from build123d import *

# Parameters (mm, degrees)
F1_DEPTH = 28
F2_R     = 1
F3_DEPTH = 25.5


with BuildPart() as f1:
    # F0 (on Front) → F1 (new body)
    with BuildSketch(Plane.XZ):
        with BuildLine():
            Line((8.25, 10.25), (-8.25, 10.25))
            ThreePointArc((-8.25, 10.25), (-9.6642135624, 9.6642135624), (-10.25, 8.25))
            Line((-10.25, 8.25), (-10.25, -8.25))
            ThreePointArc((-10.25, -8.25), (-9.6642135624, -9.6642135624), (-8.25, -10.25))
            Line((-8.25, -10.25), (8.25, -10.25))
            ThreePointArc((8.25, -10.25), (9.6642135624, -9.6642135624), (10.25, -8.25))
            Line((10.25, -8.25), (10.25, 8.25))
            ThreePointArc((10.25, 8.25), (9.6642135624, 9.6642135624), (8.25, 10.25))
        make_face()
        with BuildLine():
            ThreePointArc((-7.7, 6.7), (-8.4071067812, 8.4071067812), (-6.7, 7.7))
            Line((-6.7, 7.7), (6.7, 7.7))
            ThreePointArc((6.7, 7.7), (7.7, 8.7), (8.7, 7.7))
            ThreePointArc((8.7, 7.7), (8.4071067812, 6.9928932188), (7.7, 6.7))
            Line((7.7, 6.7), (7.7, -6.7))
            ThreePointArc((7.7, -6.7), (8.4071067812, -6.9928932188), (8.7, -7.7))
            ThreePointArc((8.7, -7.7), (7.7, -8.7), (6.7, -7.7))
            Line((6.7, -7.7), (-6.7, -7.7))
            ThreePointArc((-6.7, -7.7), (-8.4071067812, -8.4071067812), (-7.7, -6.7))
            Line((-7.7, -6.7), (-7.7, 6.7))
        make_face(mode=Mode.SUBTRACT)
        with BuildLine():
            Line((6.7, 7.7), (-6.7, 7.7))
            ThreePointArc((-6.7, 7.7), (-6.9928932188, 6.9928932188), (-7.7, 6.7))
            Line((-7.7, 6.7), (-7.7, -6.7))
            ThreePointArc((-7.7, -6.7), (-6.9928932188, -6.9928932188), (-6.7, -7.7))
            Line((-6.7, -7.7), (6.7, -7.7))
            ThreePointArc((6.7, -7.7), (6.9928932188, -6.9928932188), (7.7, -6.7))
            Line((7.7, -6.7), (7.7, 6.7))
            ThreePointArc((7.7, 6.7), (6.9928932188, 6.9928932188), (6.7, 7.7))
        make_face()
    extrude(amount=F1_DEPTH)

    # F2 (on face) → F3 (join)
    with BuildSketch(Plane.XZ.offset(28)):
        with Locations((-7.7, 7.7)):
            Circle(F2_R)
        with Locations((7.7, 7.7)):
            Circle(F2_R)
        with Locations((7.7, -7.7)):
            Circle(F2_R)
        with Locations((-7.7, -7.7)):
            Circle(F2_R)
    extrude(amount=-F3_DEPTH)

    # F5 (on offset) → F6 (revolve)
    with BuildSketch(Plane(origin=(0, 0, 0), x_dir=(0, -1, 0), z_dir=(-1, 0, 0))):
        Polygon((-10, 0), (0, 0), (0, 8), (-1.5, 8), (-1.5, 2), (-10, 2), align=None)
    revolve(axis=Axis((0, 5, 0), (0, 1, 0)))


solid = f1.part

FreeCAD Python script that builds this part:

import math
import FreeCAD as App
import Part
import Sketcher

V = App.Vector


def add_polygon(sketch, points):
    """Adds a closed chain of lines whose ends are joined by coincident constraints."""
    first, n = sketch.GeometryCount, len(points)
    for a, b in zip(points, points[1:] + points[:1]):
        sketch.addGeometry(Part.LineSegment(App.Vector(*a, 0), App.Vector(*b, 0)), False)
    for i in range(n):
        sketch.addConstraint(Sketcher.Constraint("Coincident", first + i, 2, first + (i + 1) % n, 1))

doc = App.newDocument("Part")
body = doc.addObject("PartDesign::Body", "Body")

# Sketch on XZ plane
sketch1 = doc.addObject("Sketcher::SketchObject", "Sketch")
body.addObject(sketch1)
sketch1.AttachmentSupport = (doc.XZ_Plane, [""])
sketch1.MapMode = "FlatFace"
sketch1.addGeometry([
    Part.LineSegment(V(8.25, 10.25, 0), V(-8.25, 10.25, 0)),  # 0
    Part.ArcOfCircle(Part.Circle(V(-8.25, 8.25, 0), V(0, 0, 1), 2), math.radians(90), math.radians(180)),  # 1
    Part.LineSegment(V(-10.25, 8.25, 0), V(-10.25, -8.25, 0)),  # 2
    Part.ArcOfCircle(Part.Circle(V(-8.25, -8.25, 0), V(0, 0, 1), 2), math.radians(180), math.radians(270)),  # 3
    Part.LineSegment(V(-8.25, -10.25, 0), V(8.25, -10.25, 0)),  # 4
    Part.ArcOfCircle(Part.Circle(V(8.25, -8.25, 0), V(0, 0, 1), 2), math.radians(-90), math.radians(0)),  # 5
    Part.LineSegment(V(10.25, -8.25, 0), V(10.25, 8.25, 0)),  # 6
    Part.ArcOfCircle(Part.Circle(V(8.25, 8.25, 0), V(0, 0, 1), 2), math.radians(0), math.radians(90)),  # 7
    Part.ArcOfCircle(Part.Circle(V(-7.7, -7.7, 0), V(0, 0, 1), 1), math.radians(90), math.radians(360)),  # 8
    Part.ArcOfCircle(Part.Circle(V(-7.7, -7.7, 0), V(0, 0, 1), 1), math.radians(0), math.radians(90)),  # 9
    Part.ArcOfCircle(Part.Circle(V(7.7, -7.7, 0), V(0, 0, 1), 1), math.radians(180), math.radians(360)),  # 10
    Part.ArcOfCircle(Part.Circle(V(7.7, -7.7, 0), V(0, 0, 1), 1), math.radians(90), math.radians(180)),  # 11
    Part.ArcOfCircle(Part.Circle(V(7.7, -7.7, 0), V(0, 0, 1), 1), math.radians(0), math.radians(90)),  # 12
    Part.ArcOfCircle(Part.Circle(V(7.7, 7.7, 0), V(0, 0, 1), 1), math.radians(-90), math.radians(0)),  # 13
    Part.ArcOfCircle(Part.Circle(V(7.7, 7.7, 0), V(0, 0, 1), 1), math.radians(180), math.radians(270)),  # 14
    Part.ArcOfCircle(Part.Circle(V(7.7, 7.7, 0), V(0, 0, 1), 1), math.radians(0), math.radians(180)),  # 15
    Part.ArcOfCircle(Part.Circle(V(-7.7, 7.7, 0), V(0, 0, 1), 1), math.radians(0), math.radians(270)),  # 16
    Part.ArcOfCircle(Part.Circle(V(-7.7, 7.7, 0), V(0, 0, 1), 1), math.radians(-90), math.radians(0)),  # 17
], False)
sketch1.addConstraint([
    Sketcher.Constraint("Tangent", 0, 2, 1, 1),
    Sketcher.Constraint("Tangent", 1, 2, 2, 1),
    Sketcher.Constraint("Tangent", 2, 2, 3, 1),
    Sketcher.Constraint("Tangent", 3, 2, 4, 1),
    Sketcher.Constraint("Tangent", 4, 2, 5, 1),
    Sketcher.Constraint("Tangent", 5, 2, 6, 1),
    Sketcher.Constraint("Tangent", 6, 2, 7, 1),
    Sketcher.Constraint("Tangent", 7, 2, 0, 1),
    Sketcher.Constraint("Tangent", 8, 1, 9, 2),
    Sketcher.Constraint("Coincident", 9, 1, 8, 2),
    Sketcher.Constraint("Tangent", 10, 1, 11, 2),
    Sketcher.Constraint("Tangent", 11, 1, 12, 2),
    Sketcher.Constraint("Tangent", 12, 1, 10, 2),
    Sketcher.Constraint("Tangent", 13, 1, 14, 2),
    Sketcher.Constraint("Tangent", 14, 1, 15, 2),
    Sketcher.Constraint("Tangent", 15, 1, 13, 2),
    Sketcher.Constraint("Tangent", 16, 1, 17, 2),
    Sketcher.Constraint("Coincident", 17, 1, 16, 2),
    Sketcher.Constraint("Horizontal", 0),
    Sketcher.Constraint("Vertical", 2),
    Sketcher.Constraint("Horizontal", 4),
    Sketcher.Constraint("Vertical", 6),
    Sketcher.Constraint("Equal", 1, 3),
    Sketcher.Constraint("Equal", 3, 5),
    Sketcher.Constraint("Equal", 5, 7),
    Sketcher.Constraint("Equal", 9, 10),
    Sketcher.Constraint("Equal", 12, 13),
    Sketcher.Constraint("Equal", 15, 16),
    Sketcher.Constraint("Symmetric", 1, 3, 5, 3, -1, 1),
    Sketcher.Constraint("Symmetric", 8, 3, 13, 3, -1, 1),
    Sketcher.Constraint("Symmetric", 10, 3, 16, 3, -1, 1),
    Sketcher.Constraint("Symmetric", 8, 3, 10, 3, -2),
    Sketcher.Constraint("Horizontal", 12, 3, 9, 1),
    Sketcher.Constraint("Horizontal", 9, 1, 10, 1),
    Sketcher.Constraint("Horizontal", 10, 1, 12, 1),
    Sketcher.Constraint("Horizontal", 17, 3, 14, 1),
    Sketcher.Constraint("Horizontal", 14, 1, 15, 1),
    Sketcher.Constraint("Horizontal", 15, 1, 16, 1),
    Sketcher.Constraint("Vertical", 17, 3, 8, 1),
    Sketcher.Constraint("Vertical", 15, 3, 11, 1),
    Sketcher.Constraint("Vertical", 11, 1, 13, 1),
    Sketcher.Constraint("Vertical", 8, 1, 17, 1),
    Sketcher.Constraint("Equal", 4, 2),
    Sketcher.Constraint("Radius", 1, 2.0),
    Sketcher.Constraint("Radius", 8, 1.0),
    Sketcher.Constraint("DistanceX", 0, 2, 0, 1, 16.5),
    Sketcher.Constraint("DistanceX", 8, 3, -1, 1, 7.7),
    Sketcher.Constraint("DistanceY", 8, 3, -1, 1, 7.7),
])
pad1 = doc.addObject("PartDesign::Pad", "Pad")
body.addObject(pad1)
pad1.Profile = sketch1
pad1.Length = 28

# Sketch on XZ plane
sketch2 = doc.addObject("Sketcher::SketchObject", "Sketch001")
body.addObject(sketch2)
sketch2.AttachmentSupport = (doc.XZ_Plane, [""])
sketch2.MapMode = "FlatFace"
sketch2.AttachmentOffset = App.Placement(V(0, 0, 28), App.Rotation())
sketch2.addGeometry([
    Part.Circle(V(-7.7, 7.7, 0), V(0, 0, 1), 1),
    Part.Circle(V(7.7, 7.7, 0), V(0, 0, 1), 1),
    Part.Circle(V(7.7, -7.7, 0), V(0, 0, 1), 1),
    Part.Circle(V(-7.7, -7.7, 0), V(0, 0, 1), 1),
], False)
sketch2.addConstraint([
    Sketcher.Constraint("Equal", 0, 1),
    Sketcher.Constraint("Equal", 1, 2),
    Sketcher.Constraint("Equal", 2, 3),
    Sketcher.Constraint("Symmetric", 0, 3, 2, 3, -1, 1),
    Sketcher.Constraint("Symmetric", 1, 3, 3, 3, -1, 1),
    Sketcher.Constraint("Symmetric", 0, 3, 1, 3, -2),
    Sketcher.Constraint("Diameter", 0, 2.0),
    Sketcher.Constraint("DistanceX", 0, 3, -1, 1, 7.7),
    Sketcher.Constraint("DistanceY", -1, 1, 0, 3, 7.7),
])
pad2 = doc.addObject("PartDesign::Pad", "Pad001")
body.addObject(pad2)
pad2.Profile = sketch2
pad2.Length = 25.5
pad2.Reversed = True

# Sketch on YZ plane
sketch3 = doc.addObject("Sketcher::SketchObject", "Sketch002")
body.addObject(sketch3)
sketch3.AttachmentSupport = (doc.YZ_Plane, [""])
sketch3.MapMode = "FlatFace"
add_polygon(sketch3, [(10, 0), (0, 0), (0, 8), (1.5, 8), (1.5, 2), (10, 2)])  # lines 0-5
sketch3.addConstraint([
    Sketcher.Constraint("Horizontal", 0),
    Sketcher.Constraint("Vertical", 1),
    Sketcher.Constraint("Horizontal", 2),
    Sketcher.Constraint("Vertical", 3),
    Sketcher.Constraint("Horizontal", 4),
    Sketcher.Constraint("Vertical", 5),
    Sketcher.Constraint("Coincident", 0, 2, -1, 1),
    Sketcher.Constraint("DistanceX", 0, 2, 0, 1, 10.0),
    Sketcher.Constraint("DistanceY", 1, 1, 1, 2, 8.0),
    Sketcher.Constraint("DistanceY", 3, 2, 3, 1, 6.0),
    Sketcher.Constraint("DistanceX", 2, 1, 2, 2, 1.5),
])
revolution = doc.addObject("PartDesign::Revolution", "Revolution")
body.addObject(revolution)
revolution.Profile = sketch3
revolution.ReferenceAxis = (sketch3, ["H_Axis"])
revolution.Angle = 360

doc.recompute()
